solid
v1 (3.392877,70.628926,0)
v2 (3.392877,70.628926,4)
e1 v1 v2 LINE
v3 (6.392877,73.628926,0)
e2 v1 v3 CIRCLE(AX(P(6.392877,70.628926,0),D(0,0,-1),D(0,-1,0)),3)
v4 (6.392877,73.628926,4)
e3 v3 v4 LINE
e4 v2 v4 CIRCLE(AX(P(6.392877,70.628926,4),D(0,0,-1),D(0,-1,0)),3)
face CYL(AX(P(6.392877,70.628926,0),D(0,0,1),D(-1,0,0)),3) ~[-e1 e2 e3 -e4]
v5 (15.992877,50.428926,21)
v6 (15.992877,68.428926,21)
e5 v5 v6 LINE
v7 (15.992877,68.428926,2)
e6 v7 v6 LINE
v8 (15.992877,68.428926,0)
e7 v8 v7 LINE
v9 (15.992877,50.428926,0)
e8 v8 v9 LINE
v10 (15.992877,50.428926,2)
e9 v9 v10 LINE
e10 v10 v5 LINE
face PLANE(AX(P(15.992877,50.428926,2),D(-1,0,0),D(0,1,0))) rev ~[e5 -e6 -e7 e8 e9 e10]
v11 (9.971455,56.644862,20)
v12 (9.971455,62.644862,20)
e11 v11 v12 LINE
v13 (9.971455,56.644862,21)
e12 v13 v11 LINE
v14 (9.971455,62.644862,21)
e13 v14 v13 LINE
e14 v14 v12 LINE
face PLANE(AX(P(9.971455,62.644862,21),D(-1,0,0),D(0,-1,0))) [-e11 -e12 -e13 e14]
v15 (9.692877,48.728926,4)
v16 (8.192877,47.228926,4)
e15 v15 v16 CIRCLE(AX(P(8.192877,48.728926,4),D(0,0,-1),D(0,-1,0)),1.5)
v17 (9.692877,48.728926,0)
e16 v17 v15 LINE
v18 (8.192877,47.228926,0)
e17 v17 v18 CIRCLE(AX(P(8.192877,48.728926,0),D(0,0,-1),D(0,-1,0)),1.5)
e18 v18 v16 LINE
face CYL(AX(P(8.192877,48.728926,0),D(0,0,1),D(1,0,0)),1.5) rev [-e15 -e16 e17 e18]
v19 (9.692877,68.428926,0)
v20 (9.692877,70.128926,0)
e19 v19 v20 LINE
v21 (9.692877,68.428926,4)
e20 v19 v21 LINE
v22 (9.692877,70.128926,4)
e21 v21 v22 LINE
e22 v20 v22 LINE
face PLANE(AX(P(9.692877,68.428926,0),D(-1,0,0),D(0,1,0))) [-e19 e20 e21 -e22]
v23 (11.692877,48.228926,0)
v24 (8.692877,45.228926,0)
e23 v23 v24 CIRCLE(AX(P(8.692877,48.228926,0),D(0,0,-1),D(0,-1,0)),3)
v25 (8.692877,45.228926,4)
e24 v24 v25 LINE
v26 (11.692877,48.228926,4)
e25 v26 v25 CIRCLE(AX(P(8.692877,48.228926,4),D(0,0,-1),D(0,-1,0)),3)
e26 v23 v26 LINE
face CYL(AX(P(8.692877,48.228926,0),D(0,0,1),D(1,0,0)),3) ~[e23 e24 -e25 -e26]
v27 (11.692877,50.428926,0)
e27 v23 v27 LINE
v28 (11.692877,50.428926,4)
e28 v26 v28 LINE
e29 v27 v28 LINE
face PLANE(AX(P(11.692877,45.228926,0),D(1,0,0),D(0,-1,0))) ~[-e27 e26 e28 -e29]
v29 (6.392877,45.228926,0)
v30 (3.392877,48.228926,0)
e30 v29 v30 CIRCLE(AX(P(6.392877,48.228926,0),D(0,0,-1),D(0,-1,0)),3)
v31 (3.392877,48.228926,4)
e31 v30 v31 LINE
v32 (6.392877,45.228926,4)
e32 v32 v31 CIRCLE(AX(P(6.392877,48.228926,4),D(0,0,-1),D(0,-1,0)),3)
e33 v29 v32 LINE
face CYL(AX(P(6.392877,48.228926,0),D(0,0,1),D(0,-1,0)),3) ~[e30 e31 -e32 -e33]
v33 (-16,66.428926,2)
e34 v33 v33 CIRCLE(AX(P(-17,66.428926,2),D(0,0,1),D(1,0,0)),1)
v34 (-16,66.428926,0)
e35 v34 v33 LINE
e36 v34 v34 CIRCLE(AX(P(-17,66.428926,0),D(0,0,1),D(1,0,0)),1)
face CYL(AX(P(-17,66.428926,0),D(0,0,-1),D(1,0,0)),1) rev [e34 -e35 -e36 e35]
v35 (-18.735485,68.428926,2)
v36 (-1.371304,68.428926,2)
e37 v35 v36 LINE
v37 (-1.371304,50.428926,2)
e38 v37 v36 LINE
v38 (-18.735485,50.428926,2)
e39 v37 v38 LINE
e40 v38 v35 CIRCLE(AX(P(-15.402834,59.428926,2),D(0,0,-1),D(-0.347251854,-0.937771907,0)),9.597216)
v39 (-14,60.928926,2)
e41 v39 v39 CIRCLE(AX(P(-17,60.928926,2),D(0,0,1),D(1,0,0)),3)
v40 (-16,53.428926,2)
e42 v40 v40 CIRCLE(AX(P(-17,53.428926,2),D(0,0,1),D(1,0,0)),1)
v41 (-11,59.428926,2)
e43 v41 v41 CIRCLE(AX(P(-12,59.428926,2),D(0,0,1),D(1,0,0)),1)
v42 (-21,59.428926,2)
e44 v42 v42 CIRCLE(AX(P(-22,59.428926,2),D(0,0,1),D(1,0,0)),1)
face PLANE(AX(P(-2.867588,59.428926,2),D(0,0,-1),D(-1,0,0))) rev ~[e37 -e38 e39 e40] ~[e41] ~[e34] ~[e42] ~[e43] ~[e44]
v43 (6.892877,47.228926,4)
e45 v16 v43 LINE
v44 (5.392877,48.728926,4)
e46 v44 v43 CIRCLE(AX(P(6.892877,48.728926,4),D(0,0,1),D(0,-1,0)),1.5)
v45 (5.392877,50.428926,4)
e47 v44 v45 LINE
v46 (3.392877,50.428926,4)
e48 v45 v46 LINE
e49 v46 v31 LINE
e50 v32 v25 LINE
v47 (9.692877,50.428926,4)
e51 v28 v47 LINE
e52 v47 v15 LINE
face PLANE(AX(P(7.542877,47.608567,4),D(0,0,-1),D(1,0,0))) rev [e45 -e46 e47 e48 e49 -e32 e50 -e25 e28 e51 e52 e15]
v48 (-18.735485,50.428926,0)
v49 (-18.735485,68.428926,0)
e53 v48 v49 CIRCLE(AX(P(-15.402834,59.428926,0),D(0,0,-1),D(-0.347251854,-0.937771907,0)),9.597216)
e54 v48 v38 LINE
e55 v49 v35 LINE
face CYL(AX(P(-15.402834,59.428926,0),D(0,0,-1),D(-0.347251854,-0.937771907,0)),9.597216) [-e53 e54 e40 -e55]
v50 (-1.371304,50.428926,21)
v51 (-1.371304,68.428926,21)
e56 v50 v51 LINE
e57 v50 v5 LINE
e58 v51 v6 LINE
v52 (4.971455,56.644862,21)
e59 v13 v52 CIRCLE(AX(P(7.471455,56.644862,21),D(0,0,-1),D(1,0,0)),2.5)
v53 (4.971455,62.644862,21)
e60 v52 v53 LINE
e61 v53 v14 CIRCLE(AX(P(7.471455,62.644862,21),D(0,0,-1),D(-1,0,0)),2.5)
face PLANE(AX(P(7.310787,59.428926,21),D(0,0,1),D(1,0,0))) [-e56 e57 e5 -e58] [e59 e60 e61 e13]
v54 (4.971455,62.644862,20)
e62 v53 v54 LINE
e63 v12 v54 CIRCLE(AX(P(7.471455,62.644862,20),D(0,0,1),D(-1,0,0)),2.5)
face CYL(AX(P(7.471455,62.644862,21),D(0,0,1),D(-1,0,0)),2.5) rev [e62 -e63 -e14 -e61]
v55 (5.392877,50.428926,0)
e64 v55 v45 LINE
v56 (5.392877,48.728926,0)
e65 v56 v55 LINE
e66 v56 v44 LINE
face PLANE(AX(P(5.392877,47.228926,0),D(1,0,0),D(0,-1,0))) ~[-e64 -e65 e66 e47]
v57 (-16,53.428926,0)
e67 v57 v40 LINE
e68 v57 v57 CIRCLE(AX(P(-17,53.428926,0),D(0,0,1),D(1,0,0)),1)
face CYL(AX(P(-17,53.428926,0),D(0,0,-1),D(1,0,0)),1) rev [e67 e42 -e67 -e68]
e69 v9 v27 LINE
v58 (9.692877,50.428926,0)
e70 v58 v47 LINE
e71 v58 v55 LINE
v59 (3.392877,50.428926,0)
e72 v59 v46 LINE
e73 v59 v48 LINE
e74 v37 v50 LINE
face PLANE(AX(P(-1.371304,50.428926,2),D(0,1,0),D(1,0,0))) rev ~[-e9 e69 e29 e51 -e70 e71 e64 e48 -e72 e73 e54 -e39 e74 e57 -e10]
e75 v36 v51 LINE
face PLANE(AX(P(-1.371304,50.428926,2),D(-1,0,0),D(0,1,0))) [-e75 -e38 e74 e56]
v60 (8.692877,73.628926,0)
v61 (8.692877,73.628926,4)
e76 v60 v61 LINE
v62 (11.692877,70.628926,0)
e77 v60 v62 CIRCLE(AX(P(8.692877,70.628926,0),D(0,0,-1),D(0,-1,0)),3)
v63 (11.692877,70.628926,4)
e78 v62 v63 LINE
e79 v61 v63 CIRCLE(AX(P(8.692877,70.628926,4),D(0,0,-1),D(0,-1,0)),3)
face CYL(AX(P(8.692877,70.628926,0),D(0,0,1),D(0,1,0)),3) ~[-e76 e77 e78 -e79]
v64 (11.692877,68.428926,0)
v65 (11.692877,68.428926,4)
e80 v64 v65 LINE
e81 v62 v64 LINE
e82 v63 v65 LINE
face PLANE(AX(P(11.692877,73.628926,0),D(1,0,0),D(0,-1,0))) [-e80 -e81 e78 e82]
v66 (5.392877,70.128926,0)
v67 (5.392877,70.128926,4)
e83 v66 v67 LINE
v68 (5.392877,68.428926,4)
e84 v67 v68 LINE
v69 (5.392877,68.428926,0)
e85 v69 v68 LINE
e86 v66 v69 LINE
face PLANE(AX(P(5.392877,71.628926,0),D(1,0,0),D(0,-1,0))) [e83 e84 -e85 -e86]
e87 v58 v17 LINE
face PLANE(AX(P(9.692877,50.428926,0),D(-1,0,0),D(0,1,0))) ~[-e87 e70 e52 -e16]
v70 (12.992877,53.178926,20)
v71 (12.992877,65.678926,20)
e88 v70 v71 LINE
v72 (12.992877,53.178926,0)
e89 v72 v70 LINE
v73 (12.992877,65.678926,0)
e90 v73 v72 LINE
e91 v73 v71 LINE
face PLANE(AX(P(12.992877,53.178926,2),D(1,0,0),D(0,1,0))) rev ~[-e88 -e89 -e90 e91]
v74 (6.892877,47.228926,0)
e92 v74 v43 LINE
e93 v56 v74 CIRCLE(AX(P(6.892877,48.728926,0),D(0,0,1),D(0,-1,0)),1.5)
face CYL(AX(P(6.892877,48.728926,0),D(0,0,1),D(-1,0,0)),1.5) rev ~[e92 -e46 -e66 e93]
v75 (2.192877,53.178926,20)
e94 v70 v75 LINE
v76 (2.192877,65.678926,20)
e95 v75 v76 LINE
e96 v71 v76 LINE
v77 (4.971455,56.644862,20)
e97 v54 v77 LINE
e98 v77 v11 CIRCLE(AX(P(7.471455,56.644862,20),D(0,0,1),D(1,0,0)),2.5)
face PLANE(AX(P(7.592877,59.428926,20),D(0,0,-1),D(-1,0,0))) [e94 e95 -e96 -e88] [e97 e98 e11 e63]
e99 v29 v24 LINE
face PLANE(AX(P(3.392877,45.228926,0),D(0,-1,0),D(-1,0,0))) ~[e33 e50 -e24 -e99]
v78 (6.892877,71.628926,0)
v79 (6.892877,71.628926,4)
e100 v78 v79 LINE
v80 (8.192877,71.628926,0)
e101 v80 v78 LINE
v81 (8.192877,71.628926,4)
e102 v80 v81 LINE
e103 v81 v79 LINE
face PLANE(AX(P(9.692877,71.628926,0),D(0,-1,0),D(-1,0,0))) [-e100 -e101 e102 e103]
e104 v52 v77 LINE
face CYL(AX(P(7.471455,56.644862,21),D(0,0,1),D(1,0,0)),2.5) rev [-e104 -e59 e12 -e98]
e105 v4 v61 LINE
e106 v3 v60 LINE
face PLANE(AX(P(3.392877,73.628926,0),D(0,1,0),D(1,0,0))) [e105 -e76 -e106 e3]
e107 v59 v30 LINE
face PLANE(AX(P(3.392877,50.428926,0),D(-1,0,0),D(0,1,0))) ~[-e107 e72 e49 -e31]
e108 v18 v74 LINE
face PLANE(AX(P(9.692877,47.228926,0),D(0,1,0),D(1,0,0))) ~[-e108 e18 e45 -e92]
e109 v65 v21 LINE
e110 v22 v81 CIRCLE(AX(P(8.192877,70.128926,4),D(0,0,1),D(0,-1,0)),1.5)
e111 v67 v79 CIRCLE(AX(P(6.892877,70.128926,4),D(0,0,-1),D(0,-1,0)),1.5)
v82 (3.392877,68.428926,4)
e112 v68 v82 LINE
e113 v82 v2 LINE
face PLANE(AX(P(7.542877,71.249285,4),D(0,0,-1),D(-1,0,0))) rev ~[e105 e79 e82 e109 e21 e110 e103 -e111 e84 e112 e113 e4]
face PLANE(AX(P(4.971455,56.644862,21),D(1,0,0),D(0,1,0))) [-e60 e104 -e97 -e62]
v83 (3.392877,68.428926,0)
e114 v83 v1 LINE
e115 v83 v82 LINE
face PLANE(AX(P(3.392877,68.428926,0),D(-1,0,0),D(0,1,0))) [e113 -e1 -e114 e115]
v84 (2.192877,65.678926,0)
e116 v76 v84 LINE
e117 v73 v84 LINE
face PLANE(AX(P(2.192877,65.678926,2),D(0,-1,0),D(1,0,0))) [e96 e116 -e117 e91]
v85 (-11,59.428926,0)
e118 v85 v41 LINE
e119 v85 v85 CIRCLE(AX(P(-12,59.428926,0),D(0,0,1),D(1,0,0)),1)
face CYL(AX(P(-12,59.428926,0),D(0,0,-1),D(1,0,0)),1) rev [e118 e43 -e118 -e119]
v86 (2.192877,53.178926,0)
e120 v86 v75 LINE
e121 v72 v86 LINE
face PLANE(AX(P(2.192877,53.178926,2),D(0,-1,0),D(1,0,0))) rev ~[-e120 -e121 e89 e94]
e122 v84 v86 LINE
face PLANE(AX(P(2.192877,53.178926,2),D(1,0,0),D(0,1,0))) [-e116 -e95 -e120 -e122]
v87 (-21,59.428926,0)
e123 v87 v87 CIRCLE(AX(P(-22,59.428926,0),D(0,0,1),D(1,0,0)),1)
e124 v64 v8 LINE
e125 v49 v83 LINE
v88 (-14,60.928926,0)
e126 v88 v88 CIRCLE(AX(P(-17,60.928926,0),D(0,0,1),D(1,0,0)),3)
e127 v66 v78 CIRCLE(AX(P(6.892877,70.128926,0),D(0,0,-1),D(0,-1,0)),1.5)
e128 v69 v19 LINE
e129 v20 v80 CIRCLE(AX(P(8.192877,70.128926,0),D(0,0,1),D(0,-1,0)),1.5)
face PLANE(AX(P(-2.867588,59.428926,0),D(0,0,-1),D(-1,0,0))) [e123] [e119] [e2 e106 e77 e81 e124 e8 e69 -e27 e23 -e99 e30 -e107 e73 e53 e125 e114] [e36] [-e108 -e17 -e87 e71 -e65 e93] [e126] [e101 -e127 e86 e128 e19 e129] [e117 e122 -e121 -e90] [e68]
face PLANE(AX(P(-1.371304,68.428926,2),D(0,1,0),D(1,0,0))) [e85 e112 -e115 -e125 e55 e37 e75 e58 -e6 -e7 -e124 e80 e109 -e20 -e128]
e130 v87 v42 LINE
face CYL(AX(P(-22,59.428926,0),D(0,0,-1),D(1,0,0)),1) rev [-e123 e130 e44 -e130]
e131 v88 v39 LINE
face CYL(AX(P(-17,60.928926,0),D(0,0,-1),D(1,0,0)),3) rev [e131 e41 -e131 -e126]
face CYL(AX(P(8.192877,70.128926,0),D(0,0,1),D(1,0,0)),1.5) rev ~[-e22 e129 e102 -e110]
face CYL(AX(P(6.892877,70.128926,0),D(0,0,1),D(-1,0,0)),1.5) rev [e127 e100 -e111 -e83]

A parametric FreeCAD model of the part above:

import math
import FreeCAD as App
import Part
import Sketcher


def edges_at(feature, points):
    """Names of the edges that pass closest to the given points."""
    edges = feature.Shape.Edges
    near = lambda p: min(range(len(edges)), key=lambda i: edges[i].distToShape(Part.Vertex(*p))[0])
    return sorted({f"Edge{near(p) + 1}" for p in points})

doc = App.newDocument("Part")
body = doc.addObject("PartDesign::Body", "Body")

sketch1 = body.newObject("Sketcher::SketchObject", "Sketch")
sketch1.AttachmentSupport = (doc.getObject("XY_Plane"), [""])
sketch1.MapMode = "FlatFace"
sketch1.addGeometry([
    Part.LineSegment(App.Vector(16, 68.4, 0), App.Vector(-18.7, 68.4, 0)),
    Part.ArcOfCircle(Part.Circle(App.Vector(-15.4, 59.4, 0), App.Vector(0, 0, 1), 9.6), math.radians(110), math.radians(250)),
    Part.LineSegment(App.Vector(-18.7, 50.4, 0), App.Vector(16, 50.4, 0)),
    Part.LineSegment(App.Vector(16, 50.4, 0), App.Vector(16, 68.4, 0)),
    Part.Circle(App.Vector(-17, 53.4, 0), App.Vector(0, 0, 1), 1),
    Part.Circle(App.Vector(-12, 59.4, 0), App.Vector(0, 0, 1), 1),
    Part.Circle(App.Vector(-22, 59.4, 0), App.Vector(0, 0, 1), 1),
    Part.Circle(App.Vector(-17, 66.4, 0), App.Vector(0, 0, 1), 1),
    Part.Circle(App.Vector(-17, 60.9, 0), App.Vector(0, 0, 1), 3),
], False)
sketch1.addConstraint([
    Sketcher.Constraint("Coincident", 0, 2, 1, 1),
    Sketcher.Constraint("Coincident", 1, 2, 2, 1),
    Sketcher.Constraint("Coincident", 2, 2, 3, 1),
    Sketcher.Constraint("Coincident", 3, 2, 0, 1),
    Sketcher.Constraint("Horizontal", 0),
    Sketcher.Constraint("Horizontal", 2),
    Sketcher.Constraint("Vertical", 3),
    Sketcher.Constraint("Equal", 4, 5),
    Sketcher.Constraint("Equal", 5, 6),
    Sketcher.Constraint("Equal", 6, 7),
    Sketcher.Constraint("Horizontal", 1, 3, 5, 3),
    Sketcher.Constraint("Horizontal", 5, 3, 6, 3),
    Sketcher.Constraint("Vertical", 4, 3, 7, 3),
    Sketcher.Constraint("Vertical", 7, 3, 8, 3),
    Sketcher.Constraint("Vertical", 0, 2, 1, 2),
    Sketcher.Constraint("Diameter", 4, 2.0),
    Sketcher.Constraint("Diameter", 8, 6.0),
    Sketcher.Constraint("DistanceY", 3, 1, 3, 2, 18.0),
    Sketcher.Constraint("DistanceX", 4, 3, -1, 1, 17.0),
    Sketcher.Constraint("DistanceX", 5, 3, -1, 1, 12.0),
    Sketcher.Constraint("DistanceX", 6, 3, -1, 1, 22.0),
    Sketcher.Constraint("DistanceY", 4, 3, 1, 3, 6.0),
    Sketcher.Constraint("DistanceY", 1, 3, 7, 3, 7.0),
    Sketcher.Constraint("DistanceY", 1, 3, 8, 3, 1.5),
    Sketcher.Constraint("Radius", 1, 9.597216),
    Sketcher.Constraint("DistanceX", 0, 2, 0, 1, 34.728362),
    Sketcher.Constraint("DistanceX", 1, 3, -1, 1, 15.402834),
    Sketcher.Constraint("DistanceY", -1, 1, 1, 3, 59.428926),
])
pad1 = body.newObject("PartDesign::Pad", "Pad")
pad1.Profile = sketch1
pad1.Length = 2

sketch2 = body.newObject("Sketcher::SketchObject", "Sketch001")
sketch2.AttachmentSupport = (doc.getObject("XY_Plane"), [""])
sketch2.MapMode = "FlatFace"
sketch2.AttachmentOffset = App.Placement(App.Vector(0, 0, 2), App.Rotation())
sketch2.addGeometry([
    Part.LineSegment(App.Vector(2, 66, 0), App.Vector(2, 53, 0)),
    Part.LineSegment(App.Vector(2, 53, 0), App.Vector(13, 53, 0)),
    Part.LineSegment(App.Vector(13, 53, 0), App.Vector(13, 66, 0)),
    Part.LineSegment(App.Vector(13, 66, 0), App.Vector(2, 66, 0)),
], False)
sketch2.addConstraint([
    Sketcher.Constraint("Coincident", 0, 2, 1, 1),
    Sketcher.Constraint("Coincident", 1, 2, 2, 1),
    Sketcher.Constraint("Coincident", 2, 2, 3, 1),
    Sketcher.Constraint("Coincident", 3, 2, 0, 1),
    Sketcher.Constraint("Vertical", 0),
    Sketcher.Constraint("Horizontal", 1),
    Sketcher.Constraint("Vertical", 2),
    Sketcher.Constraint("Horizontal", 3),
    Sketcher.Constraint("DistanceX", 1, 1, 1, 2, 10.8),
    Sketcher.Constraint("DistanceY", 0, 2, 0, 1, 12.5),
    Sketcher.Constraint("DistanceX", -1, 1, 0, 2, 2.192877),
    Sketcher.Constraint("DistanceY", -1, 1, 0, 2, 53.178926),
])
pocket1 = body.newObject("PartDesign::Pocket", "Pocket")
pocket1.Profile = sketch2
pocket1.Type = "ThroughAll"

sketch3 = body.newObject("Sketcher::SketchObject", "Sketch002")
sketch3.AttachmentSupport = (doc.getObject("XY_Plane"), [""])
sketch3.MapMode = "FlatFace"
sketch3.AttachmentOffset = App.Placement(App.Vector(0, 0, 2), App.Rotation())
sketch3.addGeometry([
    Part.LineSegment(App.Vector(-1, 68, 0), App.Vector(-1, 50, 0)),
    Part.LineSegment(App.Vector(-1, 50, 0), App.Vector(16, 50, 0)),
    Part.LineSegment(App.Vector(16, 50, 0), App.Vector(16, 68, 0)),
    Part.LineSegment(App.Vector(16, 68, 0), App.Vector(-1, 68, 0)),
], False)
sketch3.addConstraint([
    Sketcher.Constraint("Coincident", 0, 2, 1, 1),
    Sketcher.Constraint("Coincident", 1, 2, 2, 1),
    Sketcher.Constraint("Coincident", 2, 2, 3, 1),
    Sketcher.Constraint("Coincident", 3, 2, 0, 1),
    Sketcher.Constraint("Vertical", 0),
    Sketcher.Constraint("Horizontal", 1),
    Sketcher.Constraint("Vertical", 2),
    Sketcher.Constraint("Horizontal", 3),
    Sketcher.Constraint("DistanceY", 0, 2, 0, 1, 18.0),
    Sketcher.Constraint("DistanceX", 1, 1, 1, 2, 17.364181),
    Sketcher.Constraint("DistanceX", 0, 2, -1, 1, 1.371304),
    Sketcher.Constraint("DistanceY", -1, 1, 0, 2, 50.428926),
])
pad2 = body.newObject("PartDesign::Pad", "Pad001")
pad2.Profile = sketch3
pad2.Length = 19

sketch4 = body.newObject("Sketcher::SketchObject", "Sketch003")
sketch4.AttachmentSupport = (doc.getObject("XY_Plane"), [""])
sketch4.MapMode = "FlatFace"
sketch4.AttachmentOffset = App.Placement(App.Vector(0, 0, 2), App.Rotation())
sketch4.addGeometry([
    Part.LineSegment(App.Vector(13, 66, 0), App.Vector(13, 53, 0)),
    Part.LineSegment(App.Vector(13, 53, 0), App.Vector(2, 53, 0)),
    Part.LineSegment(App.Vector(2, 53, 0), App.Vector(2, 66, 0)),
    Part.LineSegment(App.Vector(2, 66, 0), App.Vector(13, 66, 0)),
], False)
sketch4.addConstraint([
    Sketcher.Constraint("Coincident", 0, 2, 1, 1),
    Sketcher.Constraint("Coincident", 1, 2, 2, 1),
    Sketcher.Constraint("Coincident", 2, 2, 3, 1),
    Sketcher.Constraint("Coincident", 3, 2, 0, 1),
    Sketcher.Constraint("Vertical", 0),
    Sketcher.Constraint("Horizontal", 1),
    Sketcher.Constraint("Vertical", 2),
    Sketcher.Constraint("Horizontal", 3),
    Sketcher.Constraint("DistanceX", 1, 2, 1, 1, 10.8),
    Sketcher.Constraint("DistanceY", 0, 2, 0, 1, 12.5),
    Sketcher.Constraint("DistanceX", -1, 1, 0, 2, 12.992877),
    Sketcher.Constraint("DistanceY", -1, 1, 0, 2, 53.178926),
])
pocket2 = body.newObject("PartDesign::Pocket", "Pocket001")
pocket2.Profile = sketch4
pocket2.Length = 18
pocket2.Reversed = True

sketch5 = body.newObject("Sketcher::SketchObject", "Sketch004")
sketch5.AttachmentSupport = (doc.getObject("XY_Plane"), [""])
sketch5.MapMode = "FlatFace"
sketch5.addGeometry([
    Part.LineSegment(App.Vector(11.7, 68.4, 0), App.Vector(9.7, 68.4, 0)),
    Part.LineSegment(App.Vector(9.7, 68.4, 0), App.Vector(9.7, 71.6, 0)),
    Part.LineSegment(App.Vector(9.7, 71.6, 0), App.Vector(5.4, 71.6, 0)),
    Part.LineSegment(App.Vector(5.4, 71.6, 0), App.Vector(5.4, 68.4, 0)),
    Part.LineSegment(App.Vector(5.4, 68.4, 0), App.Vector(3.4, 68.4, 0)),
    Part.LineSegment(App.Vector(3.4, 68.4, 0), App.Vector(3.4, 73.6, 0)),
    Part.LineSegment(App.Vector(3.4, 73.6, 0), App.Vector(11.7, 73.6, 0)),
    Part.LineSegment(App.Vector(11.7, 73.6, 0), App.Vector(11.7, 68.4, 0)),
], False)
sketch5.addConstraint([
    Sketcher.Constraint("Coincident", 0, 2, 1, 1),
    Sketcher.Constraint("Coincident", 1, 2, 2, 1),
    Sketcher.Constraint("Coincident", 2, 2, 3, 1),
    Sketcher.Constraint("Coincident", 3, 2, 4, 1),
    Sketcher.Constraint("Coincident", 4, 2, 5, 1),
    Sketcher.Constraint("Coincident", 5, 2, 6, 1),
    Sketcher.Constraint("Coincident", 6, 2, 7, 1),
    Sketcher.Constraint("Coincident", 7, 2, 0, 1),
    Sketcher.Constraint("Horizontal", 0),
    Sketcher.Constraint("Vertical", 1),
    Sketcher.Constraint("Horizontal", 2),
    Sketcher.Constraint("Vertical", 3),
    Sketcher.Constraint("Horizontal", 4),
    Sketcher.Constraint("Vertical", 5),
    Sketcher.Constraint("Horizontal", 6),
    Sketcher.Constraint("Vertical", 7),
    Sketcher.Constraint("Horizontal", 0, 2, 3, 2),
    Sketcher.Constraint("Equal", 0, 4),
    Sketcher.Constraint("DistanceX", 0, 2, 0, 1, 2.0),
    Sketcher.Constraint("DistanceX", 2, 2, 2, 1, 4.3),
    Sketcher.Constraint("DistanceY", 1, 1, 1, 2, 3.2),
    Sketcher.Constraint("DistanceY", 5, 1, 5, 2, 5.2),
    Sketcher.Constraint("DistanceX", -1, 1, 0, 2, 9.692877),
    Sketcher.Constraint("DistanceY", -1, 1, 0, 2, 68.428926),
])
pad3 = body.newObject("PartDesign::Pad", "Pad002")
pad3.Profile = sketch5
pad3.Length = 4
doc.recompute()

fillet = body.newObject("PartDesign::Fillet", "Fillet")
fillet.Base = (pad3, edges_at(pad3, [(5.393, 71.629, 2), (9.693, 71.629, 2)]))
fillet.Radius = 1.5
doc.recompute()

fillet2 = body.newObject("PartDesign::Fillet", "Fillet001")
fillet2.Base = (fillet, edges_at(fillet, [(3.393, 73.629, 2), (11.693, 73.629, 2)]))
fillet2.Radius = 3
doc.recompute()

datumplane = body.newObject("PartDesign::Plane", "DatumPlane")
datumplane.AttachmentSupport = (doc.getObject("XZ_Plane"), [""])
datumplane.MapMode = "FlatFace"
datumplane.AttachmentOffset = App.Placement(App.Vector(0, 0, -59.428926), App.Rotation())
mirrored = body.newObject("PartDesign::Mirrored", "Mirrored")
mirrored.Originals = [pad3]
mirrored.MirrorPlane = (datumplane, [""])
body.Tip = mirrored
doc.recompute()

fillet3 = body.newObject("PartDesign::Fillet", "Fillet002")
fillet3.Base = (mirrored, edges_at(mirrored, [(5.393, 47.229, 2), (9.693, 47.229, 2)]))
fillet3.Radius = 1.5
doc.recompute()

fillet4 = body.newObject("PartDesign::Fillet", "Fillet003")
fillet4.Base = (fillet3, edges_at(fillet3, [(3.393, 45.229, 2), (11.693, 45.229, 2)]))
fillet4.Radius = 3

sketch6 = body.newObject("Sketcher::SketchObject", "Sketch005")
sketch6.AttachmentSupport = (doc.getObject("XY_Plane"), [""])
sketch6.MapMode = "FlatFace"
sketch6.AttachmentOffset = App.Placement(App.Vector(0, 0, 21), App.Rotation())
sketch6.addGeometry([
    Part.LineSegment(App.Vector(10, 56.6, 0), App.Vector(10, 62.6, 0)),
    Part.ArcOfCircle(Part.Circle(App.Vector(7.5, 62.6, 0), App.Vector(0, 0, 1), 2.5), math.radians(0), math.radians(180)),
    Part.LineSegment(App.Vector(5, 62.6, 0), App.Vector(5, 56.6, 0)),
    Part.ArcOfCircle(Part.Circle(App.Vector(7.5, 56.6, 0), App.Vector(0, 0, 1), 2.5), math.radians(180), math.radians(360)),
], False)
sketch6.addConstraint([
    Sketcher.Constraint("Tangent", 0, 2, 1, 1),
    Sketcher.Constraint("Tangent", 1, 2, 2, 1),
    Sketcher.Constraint("Tangent", 2, 2, 3, 1),
    Sketcher.Constraint("Tangent", 3, 2, 0, 1),
    Sketcher.Constraint("Vertical", 0),
    Sketcher.Constraint("Vertical", 2),
    Sketcher.Constraint("Radius", 1, 2.5),
    Sketcher.Constraint("DistanceY", 0, 1, 0, 2, 6.0),
    Sketcher.Constraint("DistanceY", -1, 1, 1, 3, 62.644862),
    Sketcher.Constraint("DistanceX", -1, 1, 1, 3, 7.471455),
])
pocket3 = body.newObject("PartDesign::Pocket", "Pocket002")
pocket3.Profile = sketch6
pocket3.Length = 10

doc.recompute()
